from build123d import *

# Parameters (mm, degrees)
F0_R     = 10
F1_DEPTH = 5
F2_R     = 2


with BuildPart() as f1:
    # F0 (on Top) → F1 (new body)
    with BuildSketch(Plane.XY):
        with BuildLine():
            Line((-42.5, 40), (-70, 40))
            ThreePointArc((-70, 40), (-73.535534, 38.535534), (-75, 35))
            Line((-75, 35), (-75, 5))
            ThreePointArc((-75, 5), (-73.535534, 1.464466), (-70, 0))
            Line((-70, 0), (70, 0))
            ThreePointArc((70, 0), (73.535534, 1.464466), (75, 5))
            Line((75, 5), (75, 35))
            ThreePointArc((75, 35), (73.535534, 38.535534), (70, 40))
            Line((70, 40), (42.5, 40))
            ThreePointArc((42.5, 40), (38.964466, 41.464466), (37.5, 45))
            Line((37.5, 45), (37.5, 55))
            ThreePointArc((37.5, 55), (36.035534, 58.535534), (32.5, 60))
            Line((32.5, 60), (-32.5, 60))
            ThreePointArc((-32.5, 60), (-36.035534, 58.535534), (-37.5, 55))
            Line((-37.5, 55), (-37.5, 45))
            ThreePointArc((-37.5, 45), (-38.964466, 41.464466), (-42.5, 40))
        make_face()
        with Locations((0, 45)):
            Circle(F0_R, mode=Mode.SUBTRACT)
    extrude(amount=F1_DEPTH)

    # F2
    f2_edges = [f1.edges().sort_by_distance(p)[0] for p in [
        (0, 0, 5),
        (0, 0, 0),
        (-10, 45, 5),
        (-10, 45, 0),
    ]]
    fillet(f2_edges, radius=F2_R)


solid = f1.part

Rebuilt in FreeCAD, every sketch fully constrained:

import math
import FreeCAD as App
import Part
import Sketcher


def edges_at(feature, points):
    """Names of the edges that pass closest to the given points."""
    edges = feature.Shape.Edges
    near = lambda p: min(range(len(edges)), key=lambda i: edges[i].distToShape(Part.Vertex(*p))[0])
    return sorted({f"Edge{near(p) + 1}" for p in points})

doc = App.newDocument("Part")
body = doc.addObject("PartDesign::Body", "Body")

sketch1 = body.newObject("Sketcher::SketchObject", "Sketch")
sketch1.AttachmentSupport = (doc.getObject("XY_Plane"), [""])
sketch1.MapMode = "FlatFace"
sketch1.addGeometry([
    Part.LineSegment(App.Vector(-42.5, 40, 0), App.Vector(-70, 40, 0)),
    Part.ArcOfCircle(Part.Circle(App.Vector(-70, 35, 0), App.Vector(0, 0, 1), 5), math.radians(90), math.radians(180)),
    Part.LineSegment(App.Vector(-75, 35, 0), App.Vector(-75, 5, 0)),
    Part.ArcOfCircle(Part.Circle(App.Vector(-70, 5, 0), App.Vector(0, 0, 1), 5), math.radians(180), math.radians(270)),
    Part.LineSegment(App.Vector(-70, 0, 0), App.Vector(70, 0, 0)),
    Part.ArcOfCircle(Part.Circle(App.Vector(70, 5, 0), App.Vector(0, 0, 1), 5), math.radians(-90), math.radians(0)),
    Part.LineSegment(App.Vector(75, 5, 0), App.Vector(75, 35, 0)),
    Part.ArcOfCircle(Part.Circle(App.Vector(70, 35, 0), App.Vector(0, 0, 1), 5), math.radians(0), math.radians(90)),
    Part.LineSegment(App.Vector(70, 40, 0), App.Vector(42.5, 40, 0)),
    Part.ArcOfCircle(Part.Circle(App.Vector(42.5, 45, 0), App.Vector(0, 0, 1), 5), math.radians(180), math.radians(270)),
    Part.LineSegment(App.Vector(37.5, 45, 0), App.Vector(37.5, 55, 0)),
    Part.ArcOfCircle(Part.Circle(App.Vector(32.5, 55, 0), App.Vector(0, 0, 1), 5), math.radians(0), math.radians(90)),
    Part.LineSegment(App.Vector(32.5, 60, 0), App.Vector(-32.5, 60, 0)),
    Part.ArcOfCircle(Part.Circle(App.Vector(-32.5, 55, 0), App.Vector(0, 0, 1), 5), math.radians(90), math.radians(180)),
    Part.LineSegment(App.Vector(-37.5, 55, 0), App.Vector(-37.5, 45, 0)),
    Part.ArcOfCircle(Part.Circle(App.Vector(-42.5, 45, 0), App.Vector(0, 0, 1), 5), math.radians(-90), math.radians(0)),
    Part.Circle(App.Vector(0, 45, 0), App.Vector(0, 0, 1), 10),
], False)
sketch1.addConstraint([
    Sketcher.Constraint("Tangent", 0, 2, 1, 1),
    Sketcher.Constraint("Tangent", 1, 2, 2, 1),
    Sketcher.Constraint("Tangent", 2, 2, 3, 1),
    Sketcher.Constraint("Tangent", 3, 2, 4, 1),
    Sketcher.Constraint("Tangent", 4, 2, 5, 1),
    Sketcher.Constraint("Tangent", 5, 2, 6, 1),
    Sketcher.Constraint("Tangent", 6, 2, 7, 1),
    Sketcher.Constraint("Tangent", 7, 2, 8, 1),
    Sketcher.Constraint("Tangent", 8, 2, 9, 2),
    Sketcher.Constraint("Tangent", 9, 1, 10, 1),
    Sketcher.Constraint("Tangent", 10, 2, 11, 1),
    Sketcher.Constraint("Tangent", 11, 2, 12, 1),
    Sketcher.Constraint("Tangent", 12, 2, 13, 1),
    Sketcher.Constraint("Tangent", 13, 2, 14, 1),
    Sketcher.Constraint("Tangent", 14, 2, 15, 2),
    Sketcher.Constraint("Tangent", 15, 1, 0, 1),
    Sketcher.Constraint("Horizontal", 0),
    Sketcher.Constraint("Vertical", 2),
    Sketcher.Constraint("Horizontal", 4),
    Sketcher.Constraint("Vertical", 6),
    Sketcher.Constraint("Horizontal", 8),
    Sketcher.Constraint("Vertical", 10),
    Sketcher.Constraint("Horizontal", 12),
    Sketcher.Constraint("Vertical", 14),
    Sketcher.Constraint("Equal", 1, 3),
    Sketcher.Constraint("Equal", 3, 5),
    Sketcher.Constraint("Equal", 5, 7),
    Sketcher.Constraint("Equal", 7, 9),
    Sketcher.Constraint("Equal", 9, 11),
    Sketcher.Constraint("Equal", 11, 13),
    Sketcher.Constraint("Equal", 13, 15),
    Sketcher.Constraint("Symmetric", 3, 2, 4, 2, -1, 1),
    Sketcher.Constraint("Symmetric", 9, 3, 15, 3, -2),
    Sketcher.Constraint("PointOnObject", 16, 3, -2),
    Sketcher.Constraint("Horizontal", 15, 3, 16, 3),
    Sketcher.Constraint("Diameter", 16, 20.0),
    Sketcher.Constraint("Radius", 1, 5.0),
    Sketcher.Constraint("DistanceX", 4, 1, 4, 2, 140.0),
    Sketcher.Constraint("DistanceX", 12, 2, 12, 1, 65.0),
    Sketcher.Constraint("DistanceY", 2, 2, 2, 1, 30.0),
    Sketcher.Constraint("DistanceY", 10, 1, 10, 2, 10.0),
])
pad1 = body.newObject("PartDesign::Pad", "Pad")
pad1.Profile = sketch1
pad1.Length = 5
doc.recompute()

fillet = body.newObject("PartDesign::Fillet", "Fillet")
fillet.Base = (pad1, edges_at(pad1, [
    (0, 0, 5),
    (0, 0, 0),
    (-10, 45, 5),
    (-10, 45, 0),
]))
fillet.Radius = 2

doc.recompute()
